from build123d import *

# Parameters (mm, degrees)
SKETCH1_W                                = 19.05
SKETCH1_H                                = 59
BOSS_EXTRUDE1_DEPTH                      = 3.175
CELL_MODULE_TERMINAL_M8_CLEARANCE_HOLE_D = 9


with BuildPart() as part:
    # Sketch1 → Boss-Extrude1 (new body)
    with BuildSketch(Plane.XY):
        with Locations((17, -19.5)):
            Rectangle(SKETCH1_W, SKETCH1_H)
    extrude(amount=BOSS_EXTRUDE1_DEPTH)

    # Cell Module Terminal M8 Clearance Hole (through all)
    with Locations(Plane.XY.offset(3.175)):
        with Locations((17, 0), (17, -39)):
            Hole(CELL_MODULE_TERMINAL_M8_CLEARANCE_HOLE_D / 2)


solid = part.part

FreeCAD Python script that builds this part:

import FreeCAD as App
import Part
import Sketcher
from FreeCAD import Vector
Q = App.Units.Quantity


def add_polygon(sketch, points):
    """Adds a closed chain of lines whose ends are joined by coincident constraints."""
    first, n = sketch.GeometryCount, len(points)
    for a, b in zip(points, points[1:] + points[:1]):
        sketch.addGeometry(Part.LineSegment(App.Vector(*a, 0), App.Vector(*b, 0)), False)
    for i in range(n):
        sketch.addConstraint(Sketcher.Constraint("Coincident", first + i, 2, first + (i + 1) % n, 1))

doc = App.newDocument("Part")
body = doc.addObject("PartDesign::Body", "Body")

# Sketch on XY plane
sketch1 = body.newObject("Sketcher::SketchObject", "Sketch")
sketch1.AttachmentSupport = (doc.getObject("XY_Plane"), [""])
sketch1.MapMode = "FlatFace"
add_polygon(sketch1, [(7.475, 10), (7.475, -49), (26.525, -49), (26.525, 10)])  # lines 0-3
sketch1.addConstraint(Sketcher.Constraint("Vertical", 0))
sketch1.addConstraint(Sketcher.Constraint("Horizontal", 1))
sketch1.addConstraint(Sketcher.Constraint("Vertical", 2))
sketch1.addConstraint(Sketcher.Constraint("Horizontal", 3))
sketch1.addConstraint(Sketcher.Constraint("DistanceY", 0, 2, 0, 1, Q("59 mm")))
sketch1.addConstraint(Sketcher.Constraint("DistanceY", 0, 2, -1, 1, Q("49 mm")))
sketch1.addConstraint(Sketcher.Constraint("DistanceX", 1, 1, 1, 2, Q("19.05 mm")))
sketch1.addConstraint(Sketcher.Constraint("DistanceX", -1, 1, 0, 2, Q("7.475 mm")))
pad1 = body.newObject("PartDesign::Pad", "Pad")
pad1.Profile = sketch1
pad1.Length = 3.175

# Sketch on XY plane
sketch2 = body.newObject("Sketcher::SketchObject", "Sketch001")
sketch2.AttachmentSupport = (doc.getObject("XY_Plane"), [""])
sketch2.MapMode = "FlatFace"
sketch2.AttachmentOffset = App.Placement(Vector(0, 0, 3.175), App.Rotation())
sketch2.addGeometry(Part.Circle(Vector(17, 0, 0), Vector(0, 0, 1), 4.5), False)
sketch2.addGeometry(Part.Circle(Vector(17, -39, 0), Vector(0, 0, 1), 4.5), False)
sketch2.addConstraint(Sketcher.Constraint("Equal", 0, 1))
sketch2.addConstraint(Sketcher.Constraint("PointOnObject", 0, 3, -1))
sketch2.addConstraint(Sketcher.Constraint("Vertical", 0, 3, 1, 3))
sketch2.addConstraint(Sketcher.Constraint("Diameter", 0, Q("9 mm")))
sketch2.addConstraint(Sketcher.Constraint("DistanceX", -1, 1, 0, 3, Q("17 mm")))
sketch2.addConstraint(Sketcher.Constraint("DistanceY", 1, 3, -1, 1, Q("39 mm")))
doc.recompute()
hole = body.newObject("PartDesign::Hole", "Hole")
hole.Profile = sketch2
hole.ThreadType = "None"
hole.Diameter = 9
hole.DepthType = "ThroughAll"

doc.recompute()
